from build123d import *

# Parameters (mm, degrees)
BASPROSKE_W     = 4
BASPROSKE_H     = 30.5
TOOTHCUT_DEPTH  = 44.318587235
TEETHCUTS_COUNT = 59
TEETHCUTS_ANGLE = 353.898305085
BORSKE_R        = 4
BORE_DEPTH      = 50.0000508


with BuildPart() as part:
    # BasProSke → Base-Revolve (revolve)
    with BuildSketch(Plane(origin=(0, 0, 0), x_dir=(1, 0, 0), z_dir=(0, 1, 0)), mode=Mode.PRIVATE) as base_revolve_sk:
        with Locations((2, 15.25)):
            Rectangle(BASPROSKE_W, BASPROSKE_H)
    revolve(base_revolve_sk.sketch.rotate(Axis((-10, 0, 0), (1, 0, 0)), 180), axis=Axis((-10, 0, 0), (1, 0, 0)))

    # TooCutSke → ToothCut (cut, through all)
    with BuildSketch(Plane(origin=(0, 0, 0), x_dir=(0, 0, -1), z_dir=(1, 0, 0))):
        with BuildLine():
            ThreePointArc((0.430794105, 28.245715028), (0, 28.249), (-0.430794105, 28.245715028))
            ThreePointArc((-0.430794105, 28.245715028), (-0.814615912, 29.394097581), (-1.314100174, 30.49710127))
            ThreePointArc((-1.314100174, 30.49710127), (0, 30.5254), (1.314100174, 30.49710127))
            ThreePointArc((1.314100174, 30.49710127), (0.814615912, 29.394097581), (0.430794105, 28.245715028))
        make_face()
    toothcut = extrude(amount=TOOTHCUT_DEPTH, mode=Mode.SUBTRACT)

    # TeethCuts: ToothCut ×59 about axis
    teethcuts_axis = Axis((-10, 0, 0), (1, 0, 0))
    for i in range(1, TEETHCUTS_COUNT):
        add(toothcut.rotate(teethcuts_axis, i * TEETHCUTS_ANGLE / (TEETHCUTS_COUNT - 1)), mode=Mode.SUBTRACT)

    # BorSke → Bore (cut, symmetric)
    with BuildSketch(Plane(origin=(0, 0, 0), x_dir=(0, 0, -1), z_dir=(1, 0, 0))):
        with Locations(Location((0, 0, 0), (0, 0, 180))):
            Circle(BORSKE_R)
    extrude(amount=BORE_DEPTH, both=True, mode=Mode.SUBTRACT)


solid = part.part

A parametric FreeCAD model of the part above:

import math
import FreeCAD as App
import Part
import Sketcher

V = App.Vector


def add_polygon(sketch, points):
    """Adds a closed chain of lines whose ends are joined by coincident constraints."""
    first, n = sketch.GeometryCount, len(points)
    for a, b in zip(points, points[1:] + points[:1]):
        sketch.addGeometry(Part.LineSegment(App.Vector(*a, 0), App.Vector(*b, 0)), False)
    for i in range(n):
        sketch.addConstraint(Sketcher.Constraint("Coincident", first + i, 2, first + (i + 1) % n, 1))

doc = App.newDocument("Part")
params = doc.addObject("Spreadsheet::Sheet", "Params")
for row, (alias, value) in enumerate([
    ("sketch1_width", "4 mm"),
    ("sketch1_height", "30.5 mm"),
    ("revolution_angle", "360 deg"),
    ("sketch2_radius", "11.8 mm"),
    ("sketch3_diameter", "8 mm"),
    ("pocket2_length", "100.000102 mm"),
], start=1):
    params.set(f"A{row}", alias)
    params.set(f"B{row}", "=" + value)
    params.setAlias(f"B{row}", alias)

body = doc.addObject("PartDesign::Body", "Body")

# Sketch on XZ plane
sketch1 = body.newObject("Sketcher::SketchObject", "Sketch")
sketch1.AttachmentSupport = (doc.getObject("XZ_Plane"), [""])
sketch1.MapMode = "FlatFace"
add_polygon(sketch1, [(0, -30.5), (0, 0), (4, 0), (4, -30.5)])  # lines 0-3
sketch1.addConstraint([
    Sketcher.Constraint("Vertical", 0),
    Sketcher.Constraint("Horizontal", 1),
    Sketcher.Constraint("Vertical", 2),
    Sketcher.Constraint("Horizontal", 3),
    Sketcher.Constraint("Coincident", 0, 2, -1, 1),
    Sketcher.Constraint("DistanceX", 1, 1, 1, 2, 4.0),
    Sketcher.Constraint("DistanceY", 0, 1, 0, 2, 30.5),
])
sketch1.setExpression("Constraints[9]", "Params.sketch1_width")
sketch1.setExpression("Constraints[10]", "Params.sketch1_height")
revolution = body.newObject("PartDesign::Revolution", "Revolution")
revolution.Profile = sketch1
revolution.ReferenceAxis = (sketch1, ["H_Axis"])
revolution.setExpression("Angle", "Params.revolution_angle")

# Sketch on YZ plane
sketch2 = body.newObject("Sketcher::SketchObject", "Sketch001")
sketch2.AttachmentSupport = (doc.getObject("YZ_Plane"), [""])
sketch2.MapMode = "FlatFace"
sketch2.addGeometry([
    Part.ArcOfCircle(Part.Circle(V(0, 0, 0), V(0, 0, 1), 28.2), math.radians(-0.87), math.radians(0.87)),
    Part.ArcOfCircle(Part.Circle(V(25.1, -11.8, 0), V(0, 0, 1), 11.8), math.radians(62.7), math.radians(74.46)),
    Part.ArcOfCircle(Part.Circle(V(0, 0, 0), V(0, 0, 1), 30.5), math.radians(-2.47), math.radians(2.47)),
    Part.ArcOfCircle(Part.Circle(V(25.1, 11.8, 0), V(0, 0, 1), 11.8), math.radians(-74.46), math.radians(-62.7)),
], False)
sketch2.addConstraint([
    Sketcher.Constraint("Coincident", 0, 1, 1, 2),
    Sketcher.Constraint("Coincident", 1, 1, 2, 1),
    Sketcher.Constraint("Coincident", 2, 2, 3, 2),
    Sketcher.Constraint("Coincident", 3, 1, 0, 2),
    Sketcher.Constraint("Coincident", 0, 3, -1, 1),
    Sketcher.Constraint("Coincident", 2, 3, -1, 1),
    Sketcher.Constraint("Equal", 1, 3),
    Sketcher.Constraint("Symmetric", 1, 3, 3, 3, -1),
    Sketcher.Constraint("Radius", 1, 11.8),
    Sketcher.Constraint("Radius", 0, 28.249001),
    Sketcher.Constraint("Radius", 2, 30.5254),
    Sketcher.Constraint("DistanceX", -1, 1, 1, 1, 30.497101),
    Sketcher.Constraint("DistanceY", 1, 3, -1, 1, 11.79942),
])
sketch2.setExpression("Constraints[8]", "Params.sketch2_radius")
pocket1 = body.newObject("PartDesign::Pocket", "Pocket")
pocket1.Profile = sketch2
pocket1.Type = "ThroughAll"
pocket1.Reversed = True
doc.recompute()

polarpattern = body.newObject("PartDesign::PolarPattern", "PolarPattern")
polarpattern.Originals = [pocket1]
polarpattern.Axis = (doc.getObject("X_Axis"), [""])
polarpattern.Angle = 360
polarpattern.Occurrences = 59
body.Tip = polarpattern

# Sketch on YZ plane
sketch3 = body.newObject("Sketcher::SketchObject", "Sketch002")
sketch3.AttachmentSupport = (doc.getObject("YZ_Plane"), [""])
sketch3.MapMode = "FlatFace"
sketch3.addGeometry(Part.Circle(V(0, 0, 0), V(0, 0, 1), 4), False)
sketch3.addConstraint([
    Sketcher.Constraint("Coincident", 0, 3, -1, 1),
    Sketcher.Constraint("Diameter", 0, 8.0),
])
sketch3.setExpression("Constraints[1]", "Params.sketch3_diameter")
pocket2 = body.newObject("PartDesign::Pocket", "Pocket001")
pocket2.Profile = sketch3
pocket2.setExpression("Length", "Params.pocket2_length")
pocket2.Midplane = True

doc.recompute()
